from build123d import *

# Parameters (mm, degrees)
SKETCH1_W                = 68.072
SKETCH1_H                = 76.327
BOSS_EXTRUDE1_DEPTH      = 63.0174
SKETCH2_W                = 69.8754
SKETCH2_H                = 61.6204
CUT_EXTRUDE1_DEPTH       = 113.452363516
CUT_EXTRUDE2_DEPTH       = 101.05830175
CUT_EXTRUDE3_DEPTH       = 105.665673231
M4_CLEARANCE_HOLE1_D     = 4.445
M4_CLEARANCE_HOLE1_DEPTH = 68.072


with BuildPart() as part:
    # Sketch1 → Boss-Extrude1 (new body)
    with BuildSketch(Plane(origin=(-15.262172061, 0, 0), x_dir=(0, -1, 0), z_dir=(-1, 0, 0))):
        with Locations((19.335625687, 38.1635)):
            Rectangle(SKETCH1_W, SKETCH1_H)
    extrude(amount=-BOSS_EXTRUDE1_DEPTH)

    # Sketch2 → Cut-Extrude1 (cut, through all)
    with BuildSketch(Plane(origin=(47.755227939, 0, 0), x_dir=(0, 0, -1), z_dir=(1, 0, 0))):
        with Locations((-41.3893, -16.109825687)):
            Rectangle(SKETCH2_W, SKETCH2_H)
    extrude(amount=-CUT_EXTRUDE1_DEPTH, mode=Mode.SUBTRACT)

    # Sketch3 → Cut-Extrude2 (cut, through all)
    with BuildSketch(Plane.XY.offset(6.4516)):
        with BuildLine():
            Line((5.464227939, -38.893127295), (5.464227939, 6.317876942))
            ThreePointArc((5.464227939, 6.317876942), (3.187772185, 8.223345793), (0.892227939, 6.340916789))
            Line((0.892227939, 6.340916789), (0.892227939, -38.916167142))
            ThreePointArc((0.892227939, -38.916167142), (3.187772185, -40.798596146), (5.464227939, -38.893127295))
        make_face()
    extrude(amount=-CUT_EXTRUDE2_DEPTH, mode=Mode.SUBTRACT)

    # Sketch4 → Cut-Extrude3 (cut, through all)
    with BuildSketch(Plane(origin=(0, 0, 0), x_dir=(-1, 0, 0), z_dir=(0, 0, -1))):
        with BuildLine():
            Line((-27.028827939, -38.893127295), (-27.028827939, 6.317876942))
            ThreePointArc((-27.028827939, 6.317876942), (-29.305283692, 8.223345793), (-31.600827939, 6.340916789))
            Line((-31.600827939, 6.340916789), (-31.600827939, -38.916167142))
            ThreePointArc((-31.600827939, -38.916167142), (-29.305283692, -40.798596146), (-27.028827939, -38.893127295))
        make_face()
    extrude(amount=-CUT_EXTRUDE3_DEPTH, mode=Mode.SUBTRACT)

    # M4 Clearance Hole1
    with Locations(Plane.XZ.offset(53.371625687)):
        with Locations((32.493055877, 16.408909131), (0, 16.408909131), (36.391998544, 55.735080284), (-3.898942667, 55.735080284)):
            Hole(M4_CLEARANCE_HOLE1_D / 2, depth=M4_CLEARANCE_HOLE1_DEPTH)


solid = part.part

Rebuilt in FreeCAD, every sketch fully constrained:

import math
import FreeCAD as App
import Part
import Sketcher
from FreeCAD import Vector
Q = App.Units.Quantity

doc = App.newDocument("Part")
body = doc.addObject("PartDesign::Body", "Body")

sketch1 = doc.addObject("Sketcher::SketchObject", "Sketch")
body.addObject(sketch1)
sketch1.AttachmentSupport = (doc.YZ_Plane, [""])
sketch1.MapMode = "FlatFace"
sketch1.AttachmentOffset = App.Placement(Vector(0, 0, -15.262172), App.Rotation())
sketch1.addGeometry(Part.LineSegment(Vector(15, 76, 0), Vector(15, 0, 0)), False)
sketch1.addGeometry(Part.LineSegment(Vector(15, 0, 0), Vector(-53, 0, 0)), False)
sketch1.addGeometry(Part.LineSegment(Vector(-53, 0, 0), Vector(-53, 76, 0)), False)
sketch1.addGeometry(Part.LineSegment(Vector(-53, 76, 0), Vector(15, 76, 0)), False)
sketch1.addConstraint(Sketcher.Constraint("Coincident", 0, 2, 1, 1))
sketch1.addConstraint(Sketcher.Constraint("Coincident", 1, 2, 2, 1))
sketch1.addConstraint(Sketcher.Constraint("Coincident", 2, 2, 3, 1))
sketch1.addConstraint(Sketcher.Constraint("Coincident", 3, 2, 0, 1))
sketch1.addConstraint(Sketcher.Constraint("Vertical", 0))
sketch1.addConstraint(Sketcher.Constraint("Horizontal", 1))
sketch1.addConstraint(Sketcher.Constraint("Vertical", 2))
sketch1.addConstraint(Sketcher.Constraint("Horizontal", 3))
sketch1.addConstraint(Sketcher.Constraint("PointOnObject", 0, 2, -1))
sketch1.addConstraint(Sketcher.Constraint("DistanceX", 1, 2, 1, 1, Q("2.68 in")))
sketch1.addConstraint(Sketcher.Constraint("DistanceY", 0, 2, 0, 1, Q("3.005 in")))
sketch1.addConstraint(Sketcher.Constraint("DistanceX", -1, 1, 0, 2, Q("14.700374 mm")))
pad1 = doc.addObject("PartDesign::Pad", "Pad")
body.addObject(pad1)
pad1.Profile = sketch1
pad1.Length = Q("2.481 in")

sketch2 = doc.addObject("Sketcher::SketchObject", "Sketch001")
body.addObject(sketch2)
sketch2.AttachmentSupport = (doc.YZ_Plane, [""])
sketch2.MapMode = "FlatFace"
sketch2.AttachmentOffset = App.Placement(Vector(0, 0, 47.755228), App.Rotation())
sketch2.addGeometry(Part.LineSegment(Vector(15, 76, 0), Vector(-47, 76, 0)), False)
sketch2.addGeometry(Part.LineSegment(Vector(-47, 76, 0), Vector(-47, 6, 0)), False)
sketch2.addGeometry(Part.LineSegment(Vector(-47, 6, 0), Vector(15, 6, 0)), False)
sketch2.addGeometry(Part.LineSegment(Vector(15, 6, 0), Vector(15, 76, 0)), False)
sketch2.addConstraint(Sketcher.Constraint("Coincident", 0, 2, 1, 1))
sketch2.addConstraint(Sketcher.Constraint("Coincident", 1, 2, 2, 1))
sketch2.addConstraint(Sketcher.Constraint("Coincident", 2, 2, 3, 1))
sketch2.addConstraint(Sketcher.Constraint("Coincident", 3, 2, 0, 1))
sketch2.addConstraint(Sketcher.Constraint("Horizontal", 0))
sketch2.addConstraint(Sketcher.Constraint("Vertical", 1))
sketch2.addConstraint(Sketcher.Constraint("Horizontal", 2))
sketch2.addConstraint(Sketcher.Constraint("Vertical", 3))
sketch2.addConstraint(Sketcher.Constraint("DistanceX", 0, 2, 0, 1, Q("2.426 in")))
sketch2.addConstraint(Sketcher.Constraint("DistanceY", 1, 2, 1, 1, Q("2.751 in")))
sketch2.addConstraint(Sketcher.Constraint("DistanceY", -1, 1, 0, 2, Q("3.005 in")))
sketch2.addConstraint(Sketcher.Constraint("DistanceX", 0, 2, -1, 1, Q("46.920026 mm")))
pocket1 = doc.addObject("PartDesign::Pocket", "Pocket")
body.addObject(pocket1)
pocket1.Profile = sketch2
pocket1.Type = "ThroughAll"

sketch3 = doc.addObject("Sketcher::SketchObject", "Sketch002")
body.addObject(sketch3)
sketch3.AttachmentSupport = (doc.XY_Plane, [""])
sketch3.MapMode = "FlatFace"
sketch3.AttachmentOffset = App.Placement(Vector(0, 0, 0.254 * 25.4), App.Rotation())
sketch3.addGeometry(Part.LineSegment(Vector(5.5, -38.9, 0), Vector(5.5, 6.3, 0)), False)
sketch3.addGeometry(Part.ArcOfCircle(Part.Circle(Vector(3.2, 5.9, 0), Vector(0, 0, 1), 2.3), math.radians(10), math.radians(169)), False)
sketch3.addGeometry(Part.LineSegment(Vector(0.9, 6.3, 0), Vector(0.9, -38.9, 0)), False)
sketch3.addGeometry(Part.ArcOfCircle(Part.Circle(Vector(3.2, -38.5, 0), Vector(0, 0, 1), 2.3), math.radians(-169), math.radians(-10)), False)
sketch3.addConstraint(Sketcher.Constraint("Coincident", 0, 2, 1, 1))
sketch3.addConstraint(Sketcher.Constraint("Coincident", 1, 2, 2, 1))
sketch3.addConstraint(Sketcher.Constraint("Coincident", 2, 2, 3, 1))
sketch3.addConstraint(Sketcher.Constraint("Coincident", 3, 2, 0, 1))
sketch3.addConstraint(Sketcher.Constraint("Vertical", 0))
sketch3.addConstraint(Sketcher.Constraint("Vertical", 2))
sketch3.addConstraint(Sketcher.Constraint("Equal", 1, 3))
sketch3.addConstraint(Sketcher.Constraint("Vertical", 1, 3, 3, 3))
sketch3.addConstraint(Sketcher.Constraint("DistanceX", 1, 2, 0, 2, Q("0.18 in")))
sketch3.addConstraint(Sketcher.Constraint("Radius", 1, Q("2.326607 mm")))
sketch3.addConstraint(Sketcher.Constraint("DistanceY", 0, 1, 0, 2, Q("45.211004 mm")))
sketch3.addConstraint(Sketcher.Constraint("DistanceY", 2, 2, 2, 1, Q("45.257084 mm")))
sketch3.addConstraint(Sketcher.Constraint("DistanceY", -1, 1, 1, 3, Q("5.896768 mm")))
sketch3.addConstraint(Sketcher.Constraint("DistanceX", -1, 1, 1, 3, Q("3.176048 mm")))
pocket2 = doc.addObject("PartDesign::Pocket", "Pocket001")
body.addObject(pocket2)
pocket2.Profile = sketch3
pocket2.Type = "ThroughAll"

sketch4 = doc.addObject("Sketcher::SketchObject", "Sketch003")
body.addObject(sketch4)
sketch4.AttachmentSupport = (doc.XY_Plane, [""])
sketch4.MapMode = "FlatFace"
sketch4.addGeometry(Part.LineSegment(Vector(27, -38.9, 0), Vector(27, 6.3, 0)), False)
sketch4.addGeometry(Part.ArcOfCircle(Part.Circle(Vector(29.3, 5.9, 0), Vector(0, 0, 1), 2.3), math.radians(11), math.radians(170)), False)
sketch4.addGeometry(Part.LineSegment(Vector(31.6, 6.3, 0), Vector(31.6, -38.9, 0)), False)
sketch4.addGeometry(Part.ArcOfCircle(Part.Circle(Vector(29.3, -38.5, 0), Vector(0, 0, 1), 2.3), math.radians(-170), math.radians(-11)), False)
sketch4.addConstraint(Sketcher.Constraint("Coincident", 0, 2, 1, 2))
sketch4.addConstraint(Sketcher.Constraint("Coincident", 1, 1, 2, 1))
sketch4.addConstraint(Sketcher.Constraint("Coincident", 2, 2, 3, 2))
sketch4.addConstraint(Sketcher.Constraint("Coincident", 3, 1, 0, 1))
sketch4.addConstraint(Sketcher.Constraint("Vertical", 0))
sketch4.addConstraint(Sketcher.Constraint("Vertical", 2))
sketch4.addConstraint(Sketcher.Constraint("Equal", 1, 3))
sketch4.addConstraint(Sketcher.Constraint("Vertical", 1, 3, 3, 3))
sketch4.addConstraint(Sketcher.Constraint("DistanceX", 0, 2, 1, 1, Q("0.18 in")))
sketch4.addConstraint(Sketcher.Constraint("Radius", 1, Q("2.326607 mm")))
sketch4.addConstraint(Sketcher.Constraint("DistanceY", 0, 1, 0, 2, Q("45.211004 mm")))
sketch4.addConstraint(Sketcher.Constraint("DistanceY", 2, 2, 2, 1, Q("45.257084 mm")))
sketch4.addConstraint(Sketcher.Constraint("DistanceX", -1, 1, 1, 3, Q("29.317008 mm")))
sketch4.addConstraint(Sketcher.Constraint("DistanceY", -1, 1, 1, 3, Q("5.896768 mm")))
pocket3 = doc.addObject("PartDesign::Pocket", "Pocket002")
body.addObject(pocket3)
pocket3.Profile = sketch4
pocket3.Type = "ThroughAll"
pocket3.Reversed = True

sketch5 = doc.addObject("Sketcher::SketchObject", "Sketch004")
body.addObject(sketch5)
sketch5.AttachmentSupport = (doc.XZ_Plane, [""])
sketch5.MapMode = "FlatFace"
sketch5.AttachmentOffset = App.Placement(Vector(0, 0, 53.371626), App.Rotation())
sketch5.addGeometry(Part.Circle(Vector(32.5, 16.4, 0), Vector(0, 0, 1), 2.2), False)
sketch5.addGeometry(Part.Circle(Vector(0, 16.4, 0), Vector(0, 0, 1), 2.2), False)
sketch5.addGeometry(Part.Circle(Vector(36.4, 55.7, 0), Vector(0, 0, 1), 2.2), False)
sketch5.addGeometry(Part.Circle(Vector(-3.9, 55.7, 0), Vector(0, 0, 1), 2.2), False)
sketch5.addConstraint(Sketcher.Constraint("Equal", 0, 1))
sketch5.addConstraint(Sketcher.Constraint("Equal", 1, 2))
sketch5.addConstraint(Sketcher.Constraint("Equal", 2, 3))
sketch5.addConstraint(Sketcher.Constraint("PointOnObject", 1, 3, -2))
sketch5.addConstraint(Sketcher.Constraint("Horizontal", 0, 3, 1, 3))
sketch5.addConstraint(Sketcher.Constraint("Horizontal", 2, 3, 3, 3))
sketch5.addConstraint(Sketcher.Constraint("Diameter", 0, Q("0.175 in")))
sketch5.addConstraint(Sketcher.Constraint("DistanceX", -1, 1, 2, 3, Q("36.391999 mm")))
sketch5.addConstraint(Sketcher.Constraint("DistanceX", 3, 3, 0, 3, Q("36.391999 mm")))
sketch5.addConstraint(Sketcher.Constraint("DistanceY", -1, 1, 0, 3, Q("16.408909 mm")))
sketch5.addConstraint(Sketcher.Constraint("DistanceY", -1, 1, 2, 3, Q("55.73508 mm")))
sketch5.addConstraint(Sketcher.Constraint("DistanceX", 3, 3, 2, 3, Q("40.290941 mm")))
doc.recompute()
hole = doc.addObject("PartDesign::Hole", "Hole")
body.addObject(hole)
hole.Profile = sketch5
hole.ThreadType = "None"
hole.Diameter = Q("0.175 in")
hole.DepthType = "Dimension"
hole.Depth = Q("2.68 in")
hole.DrillPoint = "Flat"

doc.recompute()
